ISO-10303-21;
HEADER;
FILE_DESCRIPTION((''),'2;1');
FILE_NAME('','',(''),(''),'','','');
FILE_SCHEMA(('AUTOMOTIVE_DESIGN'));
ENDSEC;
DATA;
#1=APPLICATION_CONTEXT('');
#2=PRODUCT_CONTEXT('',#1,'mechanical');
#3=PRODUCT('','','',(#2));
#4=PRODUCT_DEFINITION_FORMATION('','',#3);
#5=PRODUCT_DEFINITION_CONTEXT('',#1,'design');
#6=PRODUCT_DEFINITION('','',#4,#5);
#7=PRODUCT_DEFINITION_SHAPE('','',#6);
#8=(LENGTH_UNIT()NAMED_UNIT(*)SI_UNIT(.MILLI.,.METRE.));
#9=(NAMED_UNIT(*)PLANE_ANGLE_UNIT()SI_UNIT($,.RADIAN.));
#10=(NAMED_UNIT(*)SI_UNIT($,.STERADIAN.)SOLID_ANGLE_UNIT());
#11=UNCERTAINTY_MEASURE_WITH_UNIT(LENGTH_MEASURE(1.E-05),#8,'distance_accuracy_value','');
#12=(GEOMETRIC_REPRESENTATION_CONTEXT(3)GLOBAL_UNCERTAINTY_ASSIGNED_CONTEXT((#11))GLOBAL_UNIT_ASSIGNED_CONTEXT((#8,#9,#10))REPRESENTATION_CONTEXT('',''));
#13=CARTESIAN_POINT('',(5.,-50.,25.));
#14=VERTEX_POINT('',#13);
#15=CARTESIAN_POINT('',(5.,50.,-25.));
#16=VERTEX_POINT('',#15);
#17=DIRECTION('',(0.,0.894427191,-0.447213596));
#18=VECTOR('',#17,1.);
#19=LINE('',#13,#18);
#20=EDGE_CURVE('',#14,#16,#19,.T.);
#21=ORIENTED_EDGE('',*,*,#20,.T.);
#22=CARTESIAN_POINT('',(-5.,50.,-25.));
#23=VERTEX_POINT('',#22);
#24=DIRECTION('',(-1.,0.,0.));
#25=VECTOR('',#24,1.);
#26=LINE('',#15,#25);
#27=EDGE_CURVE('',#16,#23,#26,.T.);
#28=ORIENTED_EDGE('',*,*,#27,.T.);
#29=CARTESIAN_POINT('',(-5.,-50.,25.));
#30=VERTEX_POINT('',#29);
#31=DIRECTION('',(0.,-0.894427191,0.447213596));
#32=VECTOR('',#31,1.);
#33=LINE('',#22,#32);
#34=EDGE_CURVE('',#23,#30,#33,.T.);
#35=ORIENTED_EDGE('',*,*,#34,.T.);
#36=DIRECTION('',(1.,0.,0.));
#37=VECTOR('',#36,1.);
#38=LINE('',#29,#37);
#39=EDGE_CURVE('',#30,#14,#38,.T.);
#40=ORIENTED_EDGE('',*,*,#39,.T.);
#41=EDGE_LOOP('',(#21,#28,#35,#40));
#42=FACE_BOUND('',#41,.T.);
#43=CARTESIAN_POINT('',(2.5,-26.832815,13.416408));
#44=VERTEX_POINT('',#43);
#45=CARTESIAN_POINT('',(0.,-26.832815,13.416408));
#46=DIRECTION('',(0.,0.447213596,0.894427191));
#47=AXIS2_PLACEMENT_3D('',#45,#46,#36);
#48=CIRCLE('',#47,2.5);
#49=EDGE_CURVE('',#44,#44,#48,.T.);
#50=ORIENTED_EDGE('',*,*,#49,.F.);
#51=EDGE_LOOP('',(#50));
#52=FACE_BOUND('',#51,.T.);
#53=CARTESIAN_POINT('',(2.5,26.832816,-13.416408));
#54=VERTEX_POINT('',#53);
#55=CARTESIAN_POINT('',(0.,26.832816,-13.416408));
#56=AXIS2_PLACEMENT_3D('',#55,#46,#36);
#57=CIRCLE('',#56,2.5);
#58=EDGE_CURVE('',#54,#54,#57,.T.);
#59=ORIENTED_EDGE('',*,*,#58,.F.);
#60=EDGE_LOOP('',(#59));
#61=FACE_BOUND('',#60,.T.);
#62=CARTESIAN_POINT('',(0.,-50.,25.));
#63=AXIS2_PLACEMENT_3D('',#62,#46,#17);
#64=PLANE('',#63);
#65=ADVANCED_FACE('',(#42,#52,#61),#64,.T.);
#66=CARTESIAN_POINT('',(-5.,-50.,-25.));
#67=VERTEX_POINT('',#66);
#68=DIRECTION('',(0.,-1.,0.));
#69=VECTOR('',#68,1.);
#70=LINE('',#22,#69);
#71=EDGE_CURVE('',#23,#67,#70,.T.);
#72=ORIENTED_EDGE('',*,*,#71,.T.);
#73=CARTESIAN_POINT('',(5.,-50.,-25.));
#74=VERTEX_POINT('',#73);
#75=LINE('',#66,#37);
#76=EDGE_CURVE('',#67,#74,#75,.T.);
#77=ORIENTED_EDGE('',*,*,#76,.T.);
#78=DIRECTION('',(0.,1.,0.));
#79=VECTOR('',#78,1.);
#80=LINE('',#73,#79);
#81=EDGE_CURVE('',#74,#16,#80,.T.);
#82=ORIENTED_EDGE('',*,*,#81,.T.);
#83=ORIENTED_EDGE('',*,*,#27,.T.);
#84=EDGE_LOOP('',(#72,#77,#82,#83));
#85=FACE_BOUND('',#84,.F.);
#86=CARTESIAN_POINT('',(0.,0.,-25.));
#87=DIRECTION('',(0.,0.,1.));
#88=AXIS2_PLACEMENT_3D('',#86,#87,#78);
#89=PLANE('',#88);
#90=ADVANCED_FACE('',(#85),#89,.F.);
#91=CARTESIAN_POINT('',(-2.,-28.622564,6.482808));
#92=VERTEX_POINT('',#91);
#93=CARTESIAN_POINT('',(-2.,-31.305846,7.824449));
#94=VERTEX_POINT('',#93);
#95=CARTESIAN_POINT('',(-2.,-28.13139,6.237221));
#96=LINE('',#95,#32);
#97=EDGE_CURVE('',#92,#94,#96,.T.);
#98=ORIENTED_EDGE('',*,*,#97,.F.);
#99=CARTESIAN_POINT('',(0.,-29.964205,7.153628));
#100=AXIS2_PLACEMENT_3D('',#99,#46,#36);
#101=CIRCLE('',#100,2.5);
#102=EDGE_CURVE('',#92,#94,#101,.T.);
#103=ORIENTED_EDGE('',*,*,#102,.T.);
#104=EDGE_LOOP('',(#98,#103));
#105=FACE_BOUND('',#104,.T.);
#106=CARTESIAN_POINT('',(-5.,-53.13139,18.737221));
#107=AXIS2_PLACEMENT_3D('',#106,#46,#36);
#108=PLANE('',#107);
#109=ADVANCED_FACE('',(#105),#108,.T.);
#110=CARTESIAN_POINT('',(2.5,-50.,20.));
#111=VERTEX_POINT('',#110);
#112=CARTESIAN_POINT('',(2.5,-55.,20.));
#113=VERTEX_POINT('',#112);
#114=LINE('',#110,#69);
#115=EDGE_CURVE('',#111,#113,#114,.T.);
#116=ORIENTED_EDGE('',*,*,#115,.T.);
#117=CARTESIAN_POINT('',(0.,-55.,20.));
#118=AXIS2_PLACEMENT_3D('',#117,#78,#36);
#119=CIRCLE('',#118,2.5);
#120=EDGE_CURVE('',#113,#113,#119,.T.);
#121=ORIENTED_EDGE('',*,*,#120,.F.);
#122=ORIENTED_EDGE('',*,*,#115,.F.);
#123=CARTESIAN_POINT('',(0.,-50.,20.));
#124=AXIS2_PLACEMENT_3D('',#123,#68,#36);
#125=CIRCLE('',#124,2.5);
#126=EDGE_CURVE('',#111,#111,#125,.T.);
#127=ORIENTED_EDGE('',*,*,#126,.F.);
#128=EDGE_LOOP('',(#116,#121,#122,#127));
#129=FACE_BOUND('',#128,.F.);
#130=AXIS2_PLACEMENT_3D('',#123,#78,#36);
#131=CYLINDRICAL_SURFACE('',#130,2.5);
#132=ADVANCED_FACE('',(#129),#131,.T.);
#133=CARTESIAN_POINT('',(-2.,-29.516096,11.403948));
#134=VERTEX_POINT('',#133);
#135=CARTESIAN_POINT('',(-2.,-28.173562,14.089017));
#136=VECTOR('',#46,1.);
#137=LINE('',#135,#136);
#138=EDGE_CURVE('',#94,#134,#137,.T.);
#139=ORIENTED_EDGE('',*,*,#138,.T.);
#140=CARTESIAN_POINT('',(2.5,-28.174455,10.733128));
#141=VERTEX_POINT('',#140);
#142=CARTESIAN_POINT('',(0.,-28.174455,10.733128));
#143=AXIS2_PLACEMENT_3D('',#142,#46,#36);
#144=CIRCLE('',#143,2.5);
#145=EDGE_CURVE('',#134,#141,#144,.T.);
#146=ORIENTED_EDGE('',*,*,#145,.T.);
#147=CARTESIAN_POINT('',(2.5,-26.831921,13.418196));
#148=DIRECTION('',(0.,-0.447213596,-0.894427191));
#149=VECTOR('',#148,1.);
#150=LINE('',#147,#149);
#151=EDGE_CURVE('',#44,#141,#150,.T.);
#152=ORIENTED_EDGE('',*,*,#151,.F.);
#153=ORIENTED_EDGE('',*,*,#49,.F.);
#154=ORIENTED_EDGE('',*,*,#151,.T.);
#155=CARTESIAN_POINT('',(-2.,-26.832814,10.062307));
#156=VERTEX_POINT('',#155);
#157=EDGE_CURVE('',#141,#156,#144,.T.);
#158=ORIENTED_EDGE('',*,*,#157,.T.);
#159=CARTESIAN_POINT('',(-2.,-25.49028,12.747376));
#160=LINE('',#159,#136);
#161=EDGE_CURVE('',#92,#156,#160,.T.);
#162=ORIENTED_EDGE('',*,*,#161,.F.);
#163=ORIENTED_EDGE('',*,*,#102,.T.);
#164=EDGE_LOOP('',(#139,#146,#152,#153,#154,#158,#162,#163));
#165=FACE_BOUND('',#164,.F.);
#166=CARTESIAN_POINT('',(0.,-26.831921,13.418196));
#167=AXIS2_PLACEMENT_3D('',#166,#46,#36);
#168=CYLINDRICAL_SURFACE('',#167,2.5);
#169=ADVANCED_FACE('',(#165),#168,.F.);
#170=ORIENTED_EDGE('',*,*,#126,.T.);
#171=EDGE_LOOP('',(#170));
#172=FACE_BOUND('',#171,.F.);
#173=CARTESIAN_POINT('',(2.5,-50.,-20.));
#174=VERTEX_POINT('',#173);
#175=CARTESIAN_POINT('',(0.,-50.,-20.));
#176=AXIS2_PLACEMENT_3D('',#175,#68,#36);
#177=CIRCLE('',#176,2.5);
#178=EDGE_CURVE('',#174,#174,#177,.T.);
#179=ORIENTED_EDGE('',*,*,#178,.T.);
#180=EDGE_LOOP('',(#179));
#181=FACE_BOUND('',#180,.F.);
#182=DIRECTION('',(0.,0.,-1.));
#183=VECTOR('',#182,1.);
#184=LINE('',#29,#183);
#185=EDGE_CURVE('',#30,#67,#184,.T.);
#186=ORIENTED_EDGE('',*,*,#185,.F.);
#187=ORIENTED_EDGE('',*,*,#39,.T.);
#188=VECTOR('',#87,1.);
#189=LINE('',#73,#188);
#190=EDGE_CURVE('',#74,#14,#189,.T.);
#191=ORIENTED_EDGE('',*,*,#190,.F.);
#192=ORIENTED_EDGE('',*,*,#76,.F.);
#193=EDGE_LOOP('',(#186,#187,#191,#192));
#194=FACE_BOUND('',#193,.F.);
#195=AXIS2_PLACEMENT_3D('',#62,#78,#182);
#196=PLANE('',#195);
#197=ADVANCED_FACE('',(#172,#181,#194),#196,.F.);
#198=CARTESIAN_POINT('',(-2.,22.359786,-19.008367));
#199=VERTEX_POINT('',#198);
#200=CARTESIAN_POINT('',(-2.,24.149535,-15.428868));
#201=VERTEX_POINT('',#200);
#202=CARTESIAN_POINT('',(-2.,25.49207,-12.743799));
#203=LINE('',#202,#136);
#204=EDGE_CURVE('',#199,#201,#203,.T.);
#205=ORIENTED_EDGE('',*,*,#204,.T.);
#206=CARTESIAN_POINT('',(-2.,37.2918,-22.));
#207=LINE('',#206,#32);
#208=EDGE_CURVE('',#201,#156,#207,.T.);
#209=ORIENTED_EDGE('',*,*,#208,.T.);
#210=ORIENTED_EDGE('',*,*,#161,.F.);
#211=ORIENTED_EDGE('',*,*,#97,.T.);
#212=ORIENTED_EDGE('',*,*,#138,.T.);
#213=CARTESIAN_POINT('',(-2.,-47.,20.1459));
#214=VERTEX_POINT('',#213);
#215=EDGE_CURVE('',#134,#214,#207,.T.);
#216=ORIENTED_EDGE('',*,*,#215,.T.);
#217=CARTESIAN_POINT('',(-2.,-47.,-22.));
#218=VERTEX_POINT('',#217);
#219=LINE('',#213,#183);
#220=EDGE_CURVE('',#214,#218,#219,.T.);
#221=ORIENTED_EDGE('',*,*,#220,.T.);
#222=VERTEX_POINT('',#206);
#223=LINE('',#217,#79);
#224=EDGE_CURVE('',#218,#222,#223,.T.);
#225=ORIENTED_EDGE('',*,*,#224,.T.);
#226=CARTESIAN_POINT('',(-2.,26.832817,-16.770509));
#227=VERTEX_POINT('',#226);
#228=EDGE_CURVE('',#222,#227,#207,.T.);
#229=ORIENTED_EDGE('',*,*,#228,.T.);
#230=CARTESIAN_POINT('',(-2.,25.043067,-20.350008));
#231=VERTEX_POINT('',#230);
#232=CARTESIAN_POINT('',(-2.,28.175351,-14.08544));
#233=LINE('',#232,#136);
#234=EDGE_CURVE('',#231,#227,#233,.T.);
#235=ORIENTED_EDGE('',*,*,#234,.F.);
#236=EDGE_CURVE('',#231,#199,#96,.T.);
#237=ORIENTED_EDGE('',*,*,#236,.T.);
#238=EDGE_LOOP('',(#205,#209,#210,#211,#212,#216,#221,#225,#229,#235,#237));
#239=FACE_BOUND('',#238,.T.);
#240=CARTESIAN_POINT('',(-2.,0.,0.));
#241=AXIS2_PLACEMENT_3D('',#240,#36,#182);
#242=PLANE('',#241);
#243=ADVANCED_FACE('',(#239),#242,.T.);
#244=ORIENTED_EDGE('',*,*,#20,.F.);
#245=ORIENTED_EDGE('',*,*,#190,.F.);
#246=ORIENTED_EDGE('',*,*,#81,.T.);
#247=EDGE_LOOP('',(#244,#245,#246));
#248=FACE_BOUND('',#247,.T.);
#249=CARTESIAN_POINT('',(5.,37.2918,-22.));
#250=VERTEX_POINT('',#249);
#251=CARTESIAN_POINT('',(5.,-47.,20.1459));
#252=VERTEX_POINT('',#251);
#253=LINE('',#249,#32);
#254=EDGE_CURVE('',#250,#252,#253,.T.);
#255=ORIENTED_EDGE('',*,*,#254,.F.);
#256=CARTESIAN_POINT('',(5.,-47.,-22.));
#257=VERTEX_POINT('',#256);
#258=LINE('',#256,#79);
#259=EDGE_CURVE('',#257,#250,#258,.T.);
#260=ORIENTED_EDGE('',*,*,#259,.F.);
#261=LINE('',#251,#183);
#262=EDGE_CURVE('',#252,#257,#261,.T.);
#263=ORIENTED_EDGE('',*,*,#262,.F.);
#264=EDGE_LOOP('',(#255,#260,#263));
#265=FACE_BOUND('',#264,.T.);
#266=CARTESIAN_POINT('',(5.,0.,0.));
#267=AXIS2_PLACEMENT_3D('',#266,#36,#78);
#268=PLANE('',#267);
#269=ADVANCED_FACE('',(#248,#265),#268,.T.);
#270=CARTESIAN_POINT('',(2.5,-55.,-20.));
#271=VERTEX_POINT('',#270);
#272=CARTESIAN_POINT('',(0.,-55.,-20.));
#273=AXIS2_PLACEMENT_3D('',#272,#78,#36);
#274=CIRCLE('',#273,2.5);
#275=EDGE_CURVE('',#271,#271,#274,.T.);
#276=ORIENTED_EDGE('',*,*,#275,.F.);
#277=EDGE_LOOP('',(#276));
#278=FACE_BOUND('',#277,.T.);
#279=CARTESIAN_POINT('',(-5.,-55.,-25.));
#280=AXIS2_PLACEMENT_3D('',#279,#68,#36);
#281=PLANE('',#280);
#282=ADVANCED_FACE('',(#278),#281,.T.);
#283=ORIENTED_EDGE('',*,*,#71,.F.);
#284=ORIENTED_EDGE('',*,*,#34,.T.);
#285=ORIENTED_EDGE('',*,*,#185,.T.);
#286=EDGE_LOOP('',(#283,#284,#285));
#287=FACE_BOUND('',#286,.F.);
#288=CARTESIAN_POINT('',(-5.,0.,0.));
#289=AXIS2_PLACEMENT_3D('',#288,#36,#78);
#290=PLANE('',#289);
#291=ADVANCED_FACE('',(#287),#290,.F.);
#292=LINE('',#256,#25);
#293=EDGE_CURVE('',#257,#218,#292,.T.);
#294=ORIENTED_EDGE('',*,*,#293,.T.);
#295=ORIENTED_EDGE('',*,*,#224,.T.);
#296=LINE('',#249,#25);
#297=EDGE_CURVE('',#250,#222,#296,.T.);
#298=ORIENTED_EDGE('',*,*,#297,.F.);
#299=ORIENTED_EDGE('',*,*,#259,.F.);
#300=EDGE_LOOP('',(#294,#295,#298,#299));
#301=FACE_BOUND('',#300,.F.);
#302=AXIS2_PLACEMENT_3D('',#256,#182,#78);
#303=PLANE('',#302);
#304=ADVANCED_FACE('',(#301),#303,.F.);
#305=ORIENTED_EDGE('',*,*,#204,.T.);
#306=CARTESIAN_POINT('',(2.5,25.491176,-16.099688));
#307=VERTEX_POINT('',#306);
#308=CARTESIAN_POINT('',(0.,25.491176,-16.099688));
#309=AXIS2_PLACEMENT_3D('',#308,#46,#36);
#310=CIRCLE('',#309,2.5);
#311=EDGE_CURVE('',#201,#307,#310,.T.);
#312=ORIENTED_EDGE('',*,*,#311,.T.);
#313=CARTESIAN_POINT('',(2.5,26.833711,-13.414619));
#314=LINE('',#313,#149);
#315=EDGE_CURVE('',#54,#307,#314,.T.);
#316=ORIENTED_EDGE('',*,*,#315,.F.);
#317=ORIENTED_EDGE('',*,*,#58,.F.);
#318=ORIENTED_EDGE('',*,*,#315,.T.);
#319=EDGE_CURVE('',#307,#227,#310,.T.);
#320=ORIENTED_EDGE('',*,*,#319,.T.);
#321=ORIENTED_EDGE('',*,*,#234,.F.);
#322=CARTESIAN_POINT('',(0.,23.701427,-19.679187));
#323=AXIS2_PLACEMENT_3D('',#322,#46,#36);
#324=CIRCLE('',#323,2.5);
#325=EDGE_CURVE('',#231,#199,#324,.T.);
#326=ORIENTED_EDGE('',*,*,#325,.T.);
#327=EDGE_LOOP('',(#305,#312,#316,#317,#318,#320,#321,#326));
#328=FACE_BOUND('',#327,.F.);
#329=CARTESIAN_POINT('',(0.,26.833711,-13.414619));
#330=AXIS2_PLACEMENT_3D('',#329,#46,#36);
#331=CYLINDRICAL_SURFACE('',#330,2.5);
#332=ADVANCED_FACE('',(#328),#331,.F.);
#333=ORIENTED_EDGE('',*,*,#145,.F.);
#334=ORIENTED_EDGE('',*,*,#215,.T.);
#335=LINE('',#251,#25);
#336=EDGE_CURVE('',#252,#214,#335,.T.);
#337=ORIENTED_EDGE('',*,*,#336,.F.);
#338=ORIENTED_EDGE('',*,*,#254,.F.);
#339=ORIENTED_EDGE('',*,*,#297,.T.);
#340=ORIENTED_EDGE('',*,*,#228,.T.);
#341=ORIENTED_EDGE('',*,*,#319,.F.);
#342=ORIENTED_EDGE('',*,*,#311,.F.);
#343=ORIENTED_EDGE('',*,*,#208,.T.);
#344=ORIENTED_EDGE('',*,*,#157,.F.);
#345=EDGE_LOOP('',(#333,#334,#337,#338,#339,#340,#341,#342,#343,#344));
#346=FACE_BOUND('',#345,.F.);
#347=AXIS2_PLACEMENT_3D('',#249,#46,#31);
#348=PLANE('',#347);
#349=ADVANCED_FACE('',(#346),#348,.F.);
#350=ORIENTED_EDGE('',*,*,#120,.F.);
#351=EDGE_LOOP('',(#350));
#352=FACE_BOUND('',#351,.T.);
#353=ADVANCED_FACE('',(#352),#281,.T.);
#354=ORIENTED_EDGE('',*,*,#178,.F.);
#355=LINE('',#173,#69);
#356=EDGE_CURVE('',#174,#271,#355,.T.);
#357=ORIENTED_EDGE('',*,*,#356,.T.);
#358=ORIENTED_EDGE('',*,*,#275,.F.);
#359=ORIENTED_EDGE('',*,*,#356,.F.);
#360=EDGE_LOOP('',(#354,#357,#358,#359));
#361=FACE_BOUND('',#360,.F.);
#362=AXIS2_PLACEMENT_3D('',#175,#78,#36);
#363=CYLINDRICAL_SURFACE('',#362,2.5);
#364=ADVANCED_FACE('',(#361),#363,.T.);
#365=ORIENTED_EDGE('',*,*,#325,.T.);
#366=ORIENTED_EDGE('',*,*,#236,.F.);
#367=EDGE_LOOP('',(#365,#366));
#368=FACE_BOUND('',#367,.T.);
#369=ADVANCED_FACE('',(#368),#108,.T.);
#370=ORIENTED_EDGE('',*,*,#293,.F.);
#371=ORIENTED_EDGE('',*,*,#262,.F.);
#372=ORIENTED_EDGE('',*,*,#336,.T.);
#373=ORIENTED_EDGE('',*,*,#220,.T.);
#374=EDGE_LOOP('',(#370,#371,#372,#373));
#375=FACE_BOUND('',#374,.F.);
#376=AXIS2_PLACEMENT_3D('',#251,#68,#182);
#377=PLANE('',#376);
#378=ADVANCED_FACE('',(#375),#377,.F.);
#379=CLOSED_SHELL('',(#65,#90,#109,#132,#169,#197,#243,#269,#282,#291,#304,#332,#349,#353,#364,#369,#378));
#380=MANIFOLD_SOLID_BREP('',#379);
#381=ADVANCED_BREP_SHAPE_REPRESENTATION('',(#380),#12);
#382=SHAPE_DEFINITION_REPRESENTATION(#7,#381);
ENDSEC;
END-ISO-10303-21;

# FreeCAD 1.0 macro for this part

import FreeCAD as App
import Part
import Sketcher

V = App.Vector
Q = App.Units.Quantity


def add_polygon(sketch, points):
    """Adds a closed chain of lines whose ends are joined by coincident constraints."""
    first, n = sketch.GeometryCount, len(points)
    for a, b in zip(points, points[1:] + points[:1]):
        sketch.addGeometry(Part.LineSegment(App.Vector(*a, 0), App.Vector(*b, 0)), False)
    for i in range(n):
        sketch.addConstraint(Sketcher.Constraint("Coincident", first + i, 2, first + (i + 1) % n, 1))

doc = App.newDocument("Part")
body = doc.addObject("PartDesign::Body", "Body")

# Sketch on YZ plane
sketch1 = body.newObject("Sketcher::SketchObject", "Sketch")
sketch1.AttachmentSupport = (doc.getObject("YZ_Plane"), [""])
sketch1.MapMode = "FlatFace"
add_polygon(sketch1, [(-50, 25), (-50, -25), (50, -25)])  # lines 0-2
sketch1.addConstraint(Sketcher.Constraint("Vertical", 0))
sketch1.addConstraint(Sketcher.Constraint("Horizontal", 1))
sketch1.addConstraint(Sketcher.Constraint("Symmetric", 1, 2, 2, 2, -1, 1))
sketch1.addConstraint(Sketcher.Constraint("DistanceX", 1, 1, 1, 2, Q("100 mm")))
sketch1.addConstraint(Sketcher.Constraint("DistanceY", 0, 2, 0, 1, Q("50 mm")))
pad1 = body.newObject("PartDesign::Pad", "Pad")
pad1.Profile = sketch1
pad1.Length = 10
pad1.Midplane = True

# Sketch on YZ plane
sketch2 = body.newObject("Sketcher::SketchObject", "Sketch001")
sketch2.AttachmentSupport = (doc.getObject("YZ_Plane"), [""])
sketch2.MapMode = "FlatFace"
sketch2.AttachmentOffset = App.Placement(V(0, 0, 5), App.Rotation())
add_polygon(sketch2, [(-47, -22), (37, -22), (-47, 20)])  # lines 0-2
sketch2.addConstraint(Sketcher.Constraint("Horizontal", 0))
sketch2.addConstraint(Sketcher.Constraint("Vertical", 2))
sketch2.addConstraint(Sketcher.Constraint("DistanceY", 0, 2, -1, 1, Q("22 mm")))
sketch2.addConstraint(Sketcher.Constraint("DistanceX", 1, 2, -1, 1, Q("47 mm")))
sketch2.addConstraint(Sketcher.Constraint("DistanceY", 2, 2, 2, 1, Q("42.146 mm")))
sketch2.addConstraint(Sketcher.Constraint("Distance", 1, Q("94.241 mm")))
pocket1 = body.newObject("PartDesign::Pocket", "Pocket")
pocket1.Profile = sketch2
pocket1.Length = 7

# Sketch on XZ plane
sketch3 = body.newObject("Sketcher::SketchObject", "Sketch002")
sketch3.AttachmentSupport = (doc.getObject("XZ_Plane"), [""])
sketch3.MapMode = "FlatFace"
sketch3.AttachmentOffset = App.Placement(V(0, 0, 50), App.Rotation())
sketch3.addGeometry(Part.Circle(V(0, 20, 0), V(0, 0, 1), 2.5), False)
sketch3.addGeometry(Part.Circle(V(0, -20, 0), V(0, 0, 1), 2.5), False)
sketch3.addConstraint(Sketcher.Constraint("Equal", 0, 1))
sketch3.addConstraint(Sketcher.Constraint("Symmetric", 0, 3, 1, 3, -1, 1))
sketch3.addConstraint(Sketcher.Constraint("PointOnObject", 0, 3, -2))
sketch3.addConstraint(Sketcher.Constraint("Diameter", 0, Q("5 mm")))
sketch3.addConstraint(Sketcher.Constraint("DistanceY", 1, 3, 0, 3, Q("40 mm")))
pad2 = body.newObject("PartDesign::Pad", "Pad001")
pad2.Profile = sketch3
pad2.Length = 5

# Sketch on an angled plane
sketch4 = body.newObject("Sketcher::SketchObject", "Sketch003")
sketch4.Placement = App.Placement(V(-5, -50, 25), App.Rotation(V(1, 0, 0), V(0, 0.894427191, -0.447213595), V(0, 0.447213595, 0.894427191), "ZXY"))
sketch4.addGeometry(Part.Circle(V(5, 85.9, 0), V(0, 0, 1), 2.5), False)
sketch4.addGeometry(Part.Circle(V(5, 25.9, 0), V(0, 0, 1), 2.5), False)
sketch4.addConstraint(Sketcher.Constraint("Equal", 0, 1))
sketch4.addConstraint(Sketcher.Constraint("Vertical", 0, 3, 1, 3))
sketch4.addConstraint(Sketcher.Constraint("Diameter", 0, Q("5 mm")))
sketch4.addConstraint(Sketcher.Constraint("DistanceX", -1, 1, 0, 3, Q("5 mm")))
sketch4.addConstraint(Sketcher.Constraint("DistanceY", 1, 3, 0, 3, Q("60 mm")))
sketch4.addConstraint(Sketcher.Constraint("DistanceY", -1, 1, 0, 3, Q("85.9017 mm")))
pocket2 = body.newObject("PartDesign::Pocket", "Pocket001")
pocket2.Profile = sketch4
pocket2.Length = 7

doc.recompute()
